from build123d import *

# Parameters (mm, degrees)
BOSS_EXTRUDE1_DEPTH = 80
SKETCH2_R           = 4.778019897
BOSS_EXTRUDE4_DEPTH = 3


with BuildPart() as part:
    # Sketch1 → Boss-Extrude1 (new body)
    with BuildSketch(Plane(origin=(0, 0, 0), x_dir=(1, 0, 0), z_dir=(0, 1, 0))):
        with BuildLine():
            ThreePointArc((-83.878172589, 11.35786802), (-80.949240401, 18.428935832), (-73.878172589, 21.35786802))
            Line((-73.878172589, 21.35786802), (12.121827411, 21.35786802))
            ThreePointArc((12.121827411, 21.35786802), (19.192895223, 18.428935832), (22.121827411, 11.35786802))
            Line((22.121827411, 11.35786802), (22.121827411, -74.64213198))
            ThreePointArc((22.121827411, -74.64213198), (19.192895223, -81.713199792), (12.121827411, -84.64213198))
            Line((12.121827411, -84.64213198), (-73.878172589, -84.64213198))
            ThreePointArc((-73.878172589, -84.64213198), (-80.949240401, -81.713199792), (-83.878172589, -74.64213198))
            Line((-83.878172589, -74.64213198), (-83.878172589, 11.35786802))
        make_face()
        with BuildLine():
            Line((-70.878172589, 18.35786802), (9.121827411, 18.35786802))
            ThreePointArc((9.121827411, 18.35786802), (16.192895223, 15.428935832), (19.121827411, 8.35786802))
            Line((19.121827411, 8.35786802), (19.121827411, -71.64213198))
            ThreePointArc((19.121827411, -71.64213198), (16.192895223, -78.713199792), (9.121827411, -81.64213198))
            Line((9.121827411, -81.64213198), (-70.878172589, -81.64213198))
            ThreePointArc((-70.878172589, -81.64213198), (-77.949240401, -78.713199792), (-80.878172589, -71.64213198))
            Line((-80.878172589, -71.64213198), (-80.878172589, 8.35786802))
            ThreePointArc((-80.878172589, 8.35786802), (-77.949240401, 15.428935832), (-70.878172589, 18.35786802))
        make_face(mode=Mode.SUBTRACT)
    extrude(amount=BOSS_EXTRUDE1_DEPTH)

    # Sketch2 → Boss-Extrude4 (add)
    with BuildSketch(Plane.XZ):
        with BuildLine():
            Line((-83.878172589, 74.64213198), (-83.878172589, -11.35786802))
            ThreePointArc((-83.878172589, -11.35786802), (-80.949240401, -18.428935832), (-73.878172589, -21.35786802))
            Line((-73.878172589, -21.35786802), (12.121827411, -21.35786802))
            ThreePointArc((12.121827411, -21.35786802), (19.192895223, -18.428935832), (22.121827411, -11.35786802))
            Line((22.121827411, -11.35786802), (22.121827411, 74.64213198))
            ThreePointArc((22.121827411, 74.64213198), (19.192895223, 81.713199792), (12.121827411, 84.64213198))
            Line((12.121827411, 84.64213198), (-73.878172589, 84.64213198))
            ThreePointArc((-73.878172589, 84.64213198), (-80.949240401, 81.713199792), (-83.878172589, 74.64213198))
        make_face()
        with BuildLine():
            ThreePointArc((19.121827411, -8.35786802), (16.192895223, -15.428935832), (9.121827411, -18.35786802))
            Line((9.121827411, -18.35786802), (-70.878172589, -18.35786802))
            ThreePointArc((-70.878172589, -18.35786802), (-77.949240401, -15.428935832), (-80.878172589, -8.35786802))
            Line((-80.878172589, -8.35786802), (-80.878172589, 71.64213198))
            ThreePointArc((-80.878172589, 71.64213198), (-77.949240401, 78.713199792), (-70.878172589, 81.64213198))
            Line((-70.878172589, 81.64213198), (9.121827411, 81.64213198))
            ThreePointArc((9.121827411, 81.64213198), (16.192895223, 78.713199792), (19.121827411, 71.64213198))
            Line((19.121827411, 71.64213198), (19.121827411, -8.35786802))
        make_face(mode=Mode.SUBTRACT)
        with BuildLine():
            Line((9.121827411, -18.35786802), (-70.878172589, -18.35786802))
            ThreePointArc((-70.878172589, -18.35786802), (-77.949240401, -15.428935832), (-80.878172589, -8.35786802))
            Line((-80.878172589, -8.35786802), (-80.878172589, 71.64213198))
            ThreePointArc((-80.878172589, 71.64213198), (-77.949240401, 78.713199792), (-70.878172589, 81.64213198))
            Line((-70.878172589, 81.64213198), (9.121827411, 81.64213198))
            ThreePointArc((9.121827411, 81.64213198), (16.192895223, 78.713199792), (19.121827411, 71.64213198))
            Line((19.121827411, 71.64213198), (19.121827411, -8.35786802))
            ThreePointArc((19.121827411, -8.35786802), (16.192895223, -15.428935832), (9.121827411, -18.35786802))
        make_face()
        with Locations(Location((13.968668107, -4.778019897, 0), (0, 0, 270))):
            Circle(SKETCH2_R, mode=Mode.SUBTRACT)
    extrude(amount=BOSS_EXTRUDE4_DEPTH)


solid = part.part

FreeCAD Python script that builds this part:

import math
import FreeCAD as App
import Part
import Sketcher
Q = App.Units.Quantity

doc = App.newDocument("Part")
body = doc.addObject("PartDesign::Body", "Body")

# Sketch on XZ plane
sketch1 = doc.addObject("Sketcher::SketchObject", "Sketch")
body.addObject(sketch1)
sketch1.AttachmentSupport = (doc.XZ_Plane, [""])
sketch1.MapMode = "FlatFace"
sketch1.addGeometry([
    Part.ArcOfCircle(Part.Circle(App.Vector(-73.878173, -11.357868, 0), App.Vector(0, 0, 1), 10), math.radians(180), math.radians(270)),  # 0
    Part.LineSegment(App.Vector(-83.878173, -11.357868, 0), App.Vector(-83.878173, 74.642132, 0)),  # 1
    Part.ArcOfCircle(Part.Circle(App.Vector(-73.878173, 74.642132, 0), App.Vector(0, 0, 1), 10), math.radians(90), math.radians(180)),  # 2
    Part.LineSegment(App.Vector(-73.878173, 84.642132, 0), App.Vector(12.121827, 84.642132, 0)),  # 3
    Part.ArcOfCircle(Part.Circle(App.Vector(12.121827, 74.642132, 0), App.Vector(0, 0, 1), 10), math.radians(0), math.radians(90)),  # 4
    Part.LineSegment(App.Vector(22.121827, 74.642132, 0), App.Vector(22.121827, -11.357868, 0)),  # 5
    Part.ArcOfCircle(Part.Circle(App.Vector(12.121827, -11.357868, 0), App.Vector(0, 0, 1), 10), math.radians(-90), math.radians(0)),  # 6
    Part.LineSegment(App.Vector(12.121827, -21.357868, 0), App.Vector(-73.878173, -21.357868, 0)),  # 7
    Part.LineSegment(App.Vector(-70.878173, -18.357868, 0), App.Vector(9.121827, -18.357868, 0)),  # 8
    Part.ArcOfCircle(Part.Circle(App.Vector(9.121827, -8.357868, 0), App.Vector(0, 0, 1), 10), math.radians(-90), math.radians(0)),  # 9
    Part.LineSegment(App.Vector(19.121827, -8.357868, 0), App.Vector(19.121827, 71.642132, 0)),  # 10
    Part.ArcOfCircle(Part.Circle(App.Vector(9.121827, 71.642132, 0), App.Vector(0, 0, 1), 10), math.radians(0), math.radians(90)),  # 11
    Part.LineSegment(App.Vector(9.121827, 81.642132, 0), App.Vector(-70.878173, 81.642132, 0)),  # 12
    Part.ArcOfCircle(Part.Circle(App.Vector(-70.878173, 71.642132, 0), App.Vector(0, 0, 1), 10), math.radians(90), math.radians(180)),  # 13
    Part.LineSegment(App.Vector(-80.878173, 71.642132, 0), App.Vector(-80.878173, -8.357868, 0)),  # 14
    Part.ArcOfCircle(Part.Circle(App.Vector(-70.878173, -8.357868, 0), App.Vector(0, 0, 1), 10), math.radians(180), math.radians(270)),  # 15
], False)
sketch1.addConstraint([
    Sketcher.Constraint("Tangent", 0, 1, 1, 1),
    Sketcher.Constraint("Tangent", 1, 2, 2, 2),
    Sketcher.Constraint("Tangent", 2, 1, 3, 1),
    Sketcher.Constraint("Tangent", 3, 2, 4, 2),
    Sketcher.Constraint("Tangent", 4, 1, 5, 1),
    Sketcher.Constraint("Tangent", 5, 2, 6, 2),
    Sketcher.Constraint("Tangent", 6, 1, 7, 1),
    Sketcher.Constraint("Tangent", 7, 2, 0, 2),
    Sketcher.Constraint("Tangent", 8, 2, 9, 1),
    Sketcher.Constraint("Tangent", 9, 2, 10, 1),
    Sketcher.Constraint("Tangent", 10, 2, 11, 1),
    Sketcher.Constraint("Tangent", 11, 2, 12, 1),
    Sketcher.Constraint("Tangent", 12, 2, 13, 1),
    Sketcher.Constraint("Tangent", 13, 2, 14, 1),
    Sketcher.Constraint("Tangent", 14, 2, 15, 1),
    Sketcher.Constraint("Tangent", 15, 2, 8, 1),
    Sketcher.Constraint("Vertical", 1),
    Sketcher.Constraint("Horizontal", 3),
    Sketcher.Constraint("Vertical", 5),
    Sketcher.Constraint("Horizontal", 7),
    Sketcher.Constraint("Horizontal", 8),
    Sketcher.Constraint("Vertical", 10),
    Sketcher.Constraint("Horizontal", 12),
    Sketcher.Constraint("Vertical", 14),
    Sketcher.Constraint("Equal", 0, 2),
    Sketcher.Constraint("Equal", 2, 4),
    Sketcher.Constraint("Equal", 4, 6),
    Sketcher.Constraint("Equal", 6, 9),
    Sketcher.Constraint("Equal", 9, 11),
    Sketcher.Constraint("Equal", 11, 13),
    Sketcher.Constraint("Equal", 13, 15),
    Sketcher.Constraint("Equal", 7, 1),
    Sketcher.Constraint("Equal", 12, 10),
    Sketcher.Constraint("Radius", 0, Q("10 mm")),
    Sketcher.Constraint("DistanceX", 3, 1, 3, 2, Q("86 mm")),
    Sketcher.Constraint("DistanceX", 8, 1, 8, 2, Q("80 mm")),
    Sketcher.Constraint("DistanceX", 9, 3, 6, 3, Q("3 mm")),
    Sketcher.Constraint("DistanceY", 6, 3, 9, 3, Q("3 mm")),
    Sketcher.Constraint("DistanceY", 0, 3, -1, 1, Q("11.357868 mm")),
    Sketcher.Constraint("DistanceX", 0, 3, -1, 1, Q("73.878173 mm")),
])
pad1 = doc.addObject("PartDesign::Pad", "Pad")
body.addObject(pad1)
pad1.Profile = sketch1
pad1.Length = 80
pad1.Reversed = True

# Sketch on XZ plane
sketch2 = doc.addObject("Sketcher::SketchObject", "Sketch001")
body.addObject(sketch2)
sketch2.AttachmentSupport = (doc.XZ_Plane, [""])
sketch2.MapMode = "FlatFace"
sketch2.addGeometry([
    Part.LineSegment(App.Vector(-83.878173, 74.642132, 0), App.Vector(-83.878173, -11.357868, 0)),  # 0
    Part.ArcOfCircle(Part.Circle(App.Vector(-73.878173, -11.357868, 0), App.Vector(0, 0, 1), 10), math.radians(180), math.radians(270)),  # 1
    Part.LineSegment(App.Vector(-73.878173, -21.357868, 0), App.Vector(12.121827, -21.357868, 0)),  # 2
    Part.ArcOfCircle(Part.Circle(App.Vector(12.121827, -11.357868, 0), App.Vector(0, 0, 1), 10), math.radians(-90), math.radians(0)),  # 3
    Part.LineSegment(App.Vector(22.121827, -11.357868, 0), App.Vector(22.121827, 74.642132, 0)),  # 4
    Part.ArcOfCircle(Part.Circle(App.Vector(12.121827, 74.642132, 0), App.Vector(0, 0, 1), 10), math.radians(0), math.radians(90)),  # 5
    Part.LineSegment(App.Vector(12.121827, 84.642132, 0), App.Vector(-73.878173, 84.642132, 0)),  # 6
    Part.ArcOfCircle(Part.Circle(App.Vector(-73.878173, 74.642132, 0), App.Vector(0, 0, 1), 10), math.radians(90), math.radians(180)),  # 7
    Part.Circle(App.Vector(13.968668, -4.77802, 0), App.Vector(0, 0, 1), 4.77802),  # 8
], False)
sketch2.addConstraint([
    Sketcher.Constraint("Tangent", 0, 2, 1, 1),
    Sketcher.Constraint("Tangent", 1, 2, 2, 1),
    Sketcher.Constraint("Tangent", 2, 2, 3, 1),
    Sketcher.Constraint("Tangent", 3, 2, 4, 1),
    Sketcher.Constraint("Tangent", 4, 2, 5, 1),
    Sketcher.Constraint("Tangent", 5, 2, 6, 1),
    Sketcher.Constraint("Tangent", 6, 2, 7, 1),
    Sketcher.Constraint("Tangent", 7, 2, 0, 1),
    Sketcher.Constraint("Vertical", 0),
    Sketcher.Constraint("Horizontal", 2),
    Sketcher.Constraint("Vertical", 4),
    Sketcher.Constraint("Horizontal", 6),
    Sketcher.Constraint("Equal", 1, 3),
    Sketcher.Constraint("Equal", 3, 5),
    Sketcher.Constraint("Equal", 5, 7),
    Sketcher.Constraint("Equal", 6, 0),
    Sketcher.Constraint("Radius", 1, Q("10 mm")),
    Sketcher.Constraint("DistanceX", 2, 1, 2, 2, Q("86 mm")),
    Sketcher.Constraint("Diameter", 8, Q("9.55604 mm")),
    Sketcher.Constraint("DistanceY", 1, 3, -1, 1, Q("11.357868 mm")),
    Sketcher.Constraint("DistanceX", -1, 1, 8, 3, Q("13.968668 mm")),
    Sketcher.Constraint("DistanceY", 8, 3, -1, 1, Q("4.77802 mm")),
    Sketcher.Constraint("DistanceX", 3, 3, 8, 3, Q("1.846841 mm")),
])
pad2 = doc.addObject("PartDesign::Pad", "Pad001")
body.addObject(pad2)
pad2.Profile = sketch2
pad2.Length = 3

doc.recompute()
